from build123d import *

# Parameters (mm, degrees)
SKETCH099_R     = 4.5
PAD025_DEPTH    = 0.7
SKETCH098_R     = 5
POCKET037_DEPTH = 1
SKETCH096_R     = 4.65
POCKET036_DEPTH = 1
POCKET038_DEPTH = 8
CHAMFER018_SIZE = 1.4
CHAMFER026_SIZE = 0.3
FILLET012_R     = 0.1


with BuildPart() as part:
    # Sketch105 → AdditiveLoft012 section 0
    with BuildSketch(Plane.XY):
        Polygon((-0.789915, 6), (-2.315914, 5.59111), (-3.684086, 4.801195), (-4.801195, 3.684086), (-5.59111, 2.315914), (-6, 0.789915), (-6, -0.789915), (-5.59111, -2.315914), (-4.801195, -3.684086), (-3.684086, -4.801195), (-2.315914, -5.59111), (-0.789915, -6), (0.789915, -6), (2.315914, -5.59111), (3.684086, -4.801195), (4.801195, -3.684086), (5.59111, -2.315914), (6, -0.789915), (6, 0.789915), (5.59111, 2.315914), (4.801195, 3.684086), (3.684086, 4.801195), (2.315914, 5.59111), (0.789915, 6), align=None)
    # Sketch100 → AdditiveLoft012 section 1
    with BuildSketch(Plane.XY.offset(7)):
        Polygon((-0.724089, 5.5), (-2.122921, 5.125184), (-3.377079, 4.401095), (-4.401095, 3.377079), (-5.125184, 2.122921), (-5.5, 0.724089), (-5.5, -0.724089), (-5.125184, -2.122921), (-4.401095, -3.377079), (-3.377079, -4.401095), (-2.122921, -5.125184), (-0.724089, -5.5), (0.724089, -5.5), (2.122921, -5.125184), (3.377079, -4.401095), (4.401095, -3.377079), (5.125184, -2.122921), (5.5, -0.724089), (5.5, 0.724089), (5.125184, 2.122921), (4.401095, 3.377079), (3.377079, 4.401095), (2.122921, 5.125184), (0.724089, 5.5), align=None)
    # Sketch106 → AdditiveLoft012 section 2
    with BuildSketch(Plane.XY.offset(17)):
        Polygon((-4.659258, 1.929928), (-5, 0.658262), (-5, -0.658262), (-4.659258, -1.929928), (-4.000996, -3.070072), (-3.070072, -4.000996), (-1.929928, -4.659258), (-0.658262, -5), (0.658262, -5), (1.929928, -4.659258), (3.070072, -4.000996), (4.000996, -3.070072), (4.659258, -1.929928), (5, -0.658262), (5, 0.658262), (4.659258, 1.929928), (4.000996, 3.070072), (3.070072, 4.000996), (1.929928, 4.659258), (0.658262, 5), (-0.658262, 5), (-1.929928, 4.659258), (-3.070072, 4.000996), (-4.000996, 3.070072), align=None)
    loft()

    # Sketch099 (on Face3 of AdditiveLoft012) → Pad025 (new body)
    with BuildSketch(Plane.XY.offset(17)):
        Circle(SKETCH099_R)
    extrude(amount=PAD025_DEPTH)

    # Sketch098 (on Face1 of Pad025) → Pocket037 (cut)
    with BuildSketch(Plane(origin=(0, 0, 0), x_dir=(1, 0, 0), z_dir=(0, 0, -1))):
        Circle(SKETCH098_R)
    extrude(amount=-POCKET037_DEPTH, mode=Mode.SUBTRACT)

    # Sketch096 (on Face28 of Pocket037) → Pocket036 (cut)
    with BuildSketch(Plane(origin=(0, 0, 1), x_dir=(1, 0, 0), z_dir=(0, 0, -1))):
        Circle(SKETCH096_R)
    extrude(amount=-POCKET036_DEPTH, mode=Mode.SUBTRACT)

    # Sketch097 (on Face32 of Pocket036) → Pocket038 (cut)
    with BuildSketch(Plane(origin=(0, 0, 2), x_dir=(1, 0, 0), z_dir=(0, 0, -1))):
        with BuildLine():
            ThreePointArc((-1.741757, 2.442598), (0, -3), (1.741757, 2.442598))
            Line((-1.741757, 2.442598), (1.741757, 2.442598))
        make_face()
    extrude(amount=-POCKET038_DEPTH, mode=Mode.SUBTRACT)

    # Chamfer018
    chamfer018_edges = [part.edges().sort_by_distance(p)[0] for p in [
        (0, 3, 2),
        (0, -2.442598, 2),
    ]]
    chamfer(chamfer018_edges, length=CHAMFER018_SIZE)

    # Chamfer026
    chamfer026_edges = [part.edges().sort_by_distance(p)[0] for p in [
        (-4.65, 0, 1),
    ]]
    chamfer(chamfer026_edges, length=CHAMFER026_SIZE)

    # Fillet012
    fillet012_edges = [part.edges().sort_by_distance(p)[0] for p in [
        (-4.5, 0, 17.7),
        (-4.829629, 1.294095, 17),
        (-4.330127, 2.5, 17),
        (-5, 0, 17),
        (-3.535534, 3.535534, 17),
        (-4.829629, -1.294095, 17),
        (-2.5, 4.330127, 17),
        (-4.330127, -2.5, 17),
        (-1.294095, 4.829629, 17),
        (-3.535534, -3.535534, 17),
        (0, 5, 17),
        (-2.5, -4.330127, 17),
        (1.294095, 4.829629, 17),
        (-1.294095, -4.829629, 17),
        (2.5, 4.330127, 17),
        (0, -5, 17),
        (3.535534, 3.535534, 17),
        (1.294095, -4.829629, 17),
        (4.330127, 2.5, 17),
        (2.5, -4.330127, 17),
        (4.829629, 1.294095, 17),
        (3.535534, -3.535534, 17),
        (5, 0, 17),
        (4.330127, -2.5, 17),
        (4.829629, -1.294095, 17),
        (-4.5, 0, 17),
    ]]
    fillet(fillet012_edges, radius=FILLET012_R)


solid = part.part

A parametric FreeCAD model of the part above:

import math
import FreeCAD as App
import Part
import Sketcher

V = App.Vector
Q = App.Units.Quantity


def edges_at(feature, points):
    """Names of the edges that pass closest to the given points."""
    edges = feature.Shape.Edges
    near = lambda p: min(range(len(edges)), key=lambda i: edges[i].distToShape(Part.Vertex(*p))[0])
    return sorted({f"Edge{near(p) + 1}" for p in points})

doc = App.newDocument("Part")
body = doc.addObject("PartDesign::Body", "Body")

sketch1 = doc.addObject("Sketcher::SketchObject", "Sketch")
body.addObject(sketch1)
sketch1.AttachmentSupport = (doc.XY_Plane, [""])
sketch1.MapMode = "FlatFace"
sketch1.addGeometry([
    Part.LineSegment(V(-0.8, 6, 0), V(-2.3, 5.6, 0)),
    Part.LineSegment(V(-2.3, 5.6, 0), V(-3.7, 4.8, 0)),
    Part.LineSegment(V(-3.7, 4.8, 0), V(-4.8, 3.7, 0)),
    Part.LineSegment(V(-4.8, 3.7, 0), V(-5.6, 2.3, 0)),
    Part.LineSegment(V(-5.6, 2.3, 0), V(-6, 0.8, 0)),
    Part.LineSegment(V(-6, 0.8, 0), V(-6, -0.8, 0)),
    Part.LineSegment(V(-6, -0.8, 0), V(-5.6, -2.3, 0)),
    Part.LineSegment(V(-5.6, -2.3, 0), V(-4.8, -3.7, 0)),
    Part.LineSegment(V(-4.8, -3.7, 0), V(-3.7, -4.8, 0)),
    Part.LineSegment(V(-3.7, -4.8, 0), V(-2.3, -5.6, 0)),
    Part.LineSegment(V(-2.3, -5.6, 0), V(-0.8, -6, 0)),
    Part.LineSegment(V(-0.8, -6, 0), V(0.8, -6, 0)),
    Part.LineSegment(V(0.8, -6, 0), V(2.3, -5.6, 0)),
    Part.LineSegment(V(2.3, -5.6, 0), V(3.7, -4.8, 0)),
    Part.LineSegment(V(3.7, -4.8, 0), V(4.8, -3.7, 0)),
    Part.LineSegment(V(4.8, -3.7, 0), V(5.6, -2.3, 0)),
    Part.LineSegment(V(5.6, -2.3, 0), V(6, -0.8, 0)),
    Part.LineSegment(V(6, -0.8, 0), V(6, 0.8, 0)),
    Part.LineSegment(V(6, 0.8, 0), V(5.6, 2.3, 0)),
    Part.LineSegment(V(5.6, 2.3, 0), V(4.8, 3.7, 0)),
    Part.LineSegment(V(4.8, 3.7, 0), V(3.7, 4.8, 0)),
    Part.LineSegment(V(3.7, 4.8, 0), V(2.3, 5.6, 0)),
    Part.LineSegment(V(2.3, 5.6, 0), V(0.8, 6, 0)),
    Part.LineSegment(V(0.8, 6, 0), V(-0.8, 6, 0)),
], False)
sketch1.addConstraint([
    Sketcher.Constraint("Coincident", 0, 2, 1, 1),
    Sketcher.Constraint("Coincident", 1, 2, 2, 1),
    Sketcher.Constraint("Coincident", 2, 2, 3, 1),
    Sketcher.Constraint("Coincident", 3, 2, 4, 1),
    Sketcher.Constraint("Coincident", 4, 2, 5, 1),
    Sketcher.Constraint("Coincident", 5, 2, 6, 1),
    Sketcher.Constraint("Coincident", 6, 2, 7, 1),
    Sketcher.Constraint("Coincident", 7, 2, 8, 1),
    Sketcher.Constraint("Coincident", 8, 2, 9, 1),
    Sketcher.Constraint("Coincident", 9, 2, 10, 1),
    Sketcher.Constraint("Coincident", 10, 2, 11, 1),
    Sketcher.Constraint("Coincident", 11, 2, 12, 1),
    Sketcher.Constraint("Coincident", 12, 2, 13, 1),
    Sketcher.Constraint("Coincident", 13, 2, 14, 1),
    Sketcher.Constraint("Coincident", 14, 2, 15, 1),
    Sketcher.Constraint("Coincident", 15, 2, 16, 1),
    Sketcher.Constraint("Coincident", 16, 2, 17, 1),
    Sketcher.Constraint("Coincident", 17, 2, 18, 1),
    Sketcher.Constraint("Coincident", 18, 2, 19, 1),
    Sketcher.Constraint("Coincident", 19, 2, 20, 1),
    Sketcher.Constraint("Coincident", 20, 2, 21, 1),
    Sketcher.Constraint("Coincident", 21, 2, 22, 1),
    Sketcher.Constraint("Coincident", 22, 2, 23, 1),
    Sketcher.Constraint("Coincident", 23, 2, 0, 1),
    Sketcher.Constraint("Vertical", 5),
    Sketcher.Constraint("Horizontal", 11),
    Sketcher.Constraint("Vertical", 17),
    Sketcher.Constraint("Horizontal", 23),
    Sketcher.Constraint("Symmetric", 0, 2, 12, 2, -1, 1),
    Sketcher.Constraint("Symmetric", 1, 2, 13, 2, -1, 1),
    Sketcher.Constraint("Symmetric", 2, 2, 14, 2, -1, 1),
    Sketcher.Constraint("Symmetric", 3, 2, 15, 2, -1, 1),
    Sketcher.Constraint("Symmetric", 4, 2, 16, 2, -1, 1),
    Sketcher.Constraint("Symmetric", 6, 2, 18, 2, -1, 1),
    Sketcher.Constraint("Symmetric", 7, 2, 19, 2, -1, 1),
    Sketcher.Constraint("Symmetric", 8, 2, 20, 2, -1, 1),
    Sketcher.Constraint("Symmetric", 9, 2, 21, 2, -1, 1),
    Sketcher.Constraint("Symmetric", 10, 2, 22, 2, -1, 1),
    Sketcher.Constraint("Symmetric", 9, 2, 12, 2, -2),
    Sketcher.Constraint("Symmetric", 8, 2, 13, 2, -2),
    Sketcher.Constraint("Symmetric", 7, 2, 14, 2, -2),
    Sketcher.Constraint("Symmetric", 6, 2, 15, 2, -2),
    Sketcher.Constraint("Perpendicular", 0, 6),
    Sketcher.Constraint("Perpendicular", 1, 7),
    Sketcher.Constraint("Perpendicular", 2, 8),
    Sketcher.Constraint("Perpendicular", 4, 10),
    Sketcher.Constraint("Perpendicular", 6, 12),
    Sketcher.Constraint("Perpendicular", 12, 18),
    Sketcher.Constraint("Horizontal", 5, 2, 16, 2),
    Sketcher.Constraint("Equal", 23, 5),
    Sketcher.Constraint("Equal", 0, 1),
    Sketcher.Constraint("Equal", 1, 2),
    Sketcher.Constraint("Equal", 2, 3),
    Sketcher.Constraint("Equal", 3, 4),
    Sketcher.Constraint("Angle", 0, Q("-165.000007 deg")),
    Sketcher.Constraint("Angle", 1, Q("-149.999983 deg")),
    Sketcher.Constraint("DistanceX", 4, 2, -1, 1, 6.0),
    Sketcher.Constraint("DistanceY", 6, 2, 2, 2, 6.0),
])

sketch2 = doc.addObject("Sketcher::SketchObject", "Sketch001")
body.addObject(sketch2)
sketch2.AttachmentSupport = (doc.XY_Plane, [""])
sketch2.MapMode = "FlatFace"
sketch2.AttachmentOffset = App.Placement(V(0, 0, 7), App.Rotation())
sketch2.addGeometry([
    Part.LineSegment(V(-0.7, 5.5, 0), V(-2.1, 5.1, 0)),
    Part.LineSegment(V(-2.1, 5.1, 0), V(-3.4, 4.4, 0)),
    Part.LineSegment(V(-3.4, 4.4, 0), V(-4.4, 3.4, 0)),
    Part.LineSegment(V(-4.4, 3.4, 0), V(-5.1, 2.1, 0)),
    Part.LineSegment(V(-5.1, 2.1, 0), V(-5.5, 0.7, 0)),
    Part.LineSegment(V(-5.5, 0.7, 0), V(-5.5, -0.7, 0)),
    Part.LineSegment(V(-5.5, -0.7, 0), V(-5.1, -2.1, 0)),
    Part.LineSegment(V(-5.1, -2.1, 0), V(-4.4, -3.4, 0)),
    Part.LineSegment(V(-4.4, -3.4, 0), V(-3.4, -4.4, 0)),
    Part.LineSegment(V(-3.4, -4.4, 0), V(-2.1, -5.1, 0)),
    Part.LineSegment(V(-2.1, -5.1, 0), V(-0.7, -5.5, 0)),
    Part.LineSegment(V(-0.7, -5.5, 0), V(0.7, -5.5, 0)),
    Part.LineSegment(V(0.7, -5.5, 0), V(2.1, -5.1, 0)),
    Part.LineSegment(V(2.1, -5.1, 0), V(3.4, -4.4, 0)),
    Part.LineSegment(V(3.4, -4.4, 0), V(4.4, -3.4, 0)),
    Part.LineSegment(V(4.4, -3.4, 0), V(5.1, -2.1, 0)),
    Part.LineSegment(V(5.1, -2.1, 0), V(5.5, -0.7, 0)),
    Part.LineSegment(V(5.5, -0.7, 0), V(5.5, 0.7, 0)),
    Part.LineSegment(V(5.5, 0.7, 0), V(5.1, 2.1, 0)),
    Part.LineSegment(V(5.1, 2.1, 0), V(4.4, 3.4, 0)),
    Part.LineSegment(V(4.4, 3.4, 0), V(3.4, 4.4, 0)),
    Part.LineSegment(V(3.4, 4.4, 0), V(2.1, 5.1, 0)),
    Part.LineSegment(V(2.1, 5.1, 0), V(0.7, 5.5, 0)),
    Part.LineSegment(V(0.7, 5.5, 0), V(-0.7, 5.5, 0)),
], False)
sketch2.addConstraint([
    Sketcher.Constraint("Coincident", 0, 2, 1, 1),
    Sketcher.Constraint("Coincident", 1, 2, 2, 1),
    Sketcher.Constraint("Coincident", 2, 2, 3, 1),
    Sketcher.Constraint("Coincident", 3, 2, 4, 1),
    Sketcher.Constraint("Coincident", 4, 2, 5, 1),
    Sketcher.Constraint("Coincident", 5, 2, 6, 1),
    Sketcher.Constraint("Coincident", 6, 2, 7, 1),
    Sketcher.Constraint("Coincident", 7, 2, 8, 1),
    Sketcher.Constraint("Coincident", 8, 2, 9, 1),
    Sketcher.Constraint("Coincident", 9, 2, 10, 1),
    Sketcher.Constraint("Coincident", 10, 2, 11, 1),
    Sketcher.Constraint("Coincident", 11, 2, 12, 1),
    Sketcher.Constraint("Coincident", 12, 2, 13, 1),
    Sketcher.Constraint("Coincident", 13, 2, 14, 1),
    Sketcher.Constraint("Coincident", 14, 2, 15, 1),
    Sketcher.Constraint("Coincident", 15, 2, 16, 1),
    Sketcher.Constraint("Coincident", 16, 2, 17, 1),
    Sketcher.Constraint("Coincident", 17, 2, 18, 1),
    Sketcher.Constraint("Coincident", 18, 2, 19, 1),
    Sketcher.Constraint("Coincident", 19, 2, 20, 1),
    Sketcher.Constraint("Coincident", 20, 2, 21, 1),
    Sketcher.Constraint("Coincident", 21, 2, 22, 1),
    Sketcher.Constraint("Coincident", 22, 2, 23, 1),
    Sketcher.Constraint("Coincident", 23, 2, 0, 1),
    Sketcher.Constraint("Vertical", 5),
    Sketcher.Constraint("Horizontal", 11),
    Sketcher.Constraint("Vertical", 17),
    Sketcher.Constraint("Horizontal", 23),
    Sketcher.Constraint("Symmetric", 0, 2, 12, 2, -1, 1),
    Sketcher.Constraint("Symmetric", 1, 2, 13, 2, -1, 1),
    Sketcher.Constraint("Symmetric", 2, 2, 14, 2, -1, 1),
    Sketcher.Constraint("Symmetric", 3, 2, 15, 2, -1, 1),
    Sketcher.Constraint("Symmetric", 4, 2, 16, 2, -1, 1),
    Sketcher.Constraint("Symmetric", 6, 2, 18, 2, -1, 1),
    Sketcher.Constraint("Symmetric", 7, 2, 19, 2, -1, 1),
    Sketcher.Constraint("Symmetric", 8, 2, 20, 2, -1, 1),
    Sketcher.Constraint("Symmetric", 9, 2, 21, 2, -1, 1),
    Sketcher.Constraint("Symmetric", 10, 2, 22, 2, -1, 1),
    Sketcher.Constraint("Symmetric", 9, 2, 12, 2, -2),
    Sketcher.Constraint("Symmetric", 8, 2, 13, 2, -2),
    Sketcher.Constraint("Symmetric", 7, 2, 14, 2, -2),
    Sketcher.Constraint("Symmetric", 6, 2, 15, 2, -2),
    Sketcher.Constraint("Perpendicular", 0, 6),
    Sketcher.Constraint("Perpendicular", 1, 7),
    Sketcher.Constraint("Perpendicular", 2, 8),
    Sketcher.Constraint("Perpendicular", 4, 10),
    Sketcher.Constraint("Perpendicular", 6, 12),
    Sketcher.Constraint("Perpendicular", 12, 18),
    Sketcher.Constraint("Horizontal", 5, 2, 16, 2),
    Sketcher.Constraint("Equal", 23, 5),
    Sketcher.Constraint("Equal", 0, 1),
    Sketcher.Constraint("Equal", 1, 2),
    Sketcher.Constraint("Equal", 2, 3),
    Sketcher.Constraint("Equal", 3, 4),
    Sketcher.Constraint("Angle", 0, Q("-164.999996 deg")),
    Sketcher.Constraint("Angle", 1, Q("-149.999981 deg")),
    Sketcher.Constraint("DistanceX", 4, 2, -1, 1, 5.5),
    Sketcher.Constraint("DistanceY", 6, 2, 2, 2, 5.5),
])

sketch3 = doc.addObject("Sketcher::SketchObject", "Sketch002")
body.addObject(sketch3)
sketch3.AttachmentSupport = (doc.XY_Plane, [""])
sketch3.MapMode = "FlatFace"
sketch3.AttachmentOffset = App.Placement(V(0, 0, 17), App.Rotation())
sketch3.addGeometry([
    Part.LineSegment(V(-4.7, 1.9, 0), V(-5, 0.7, 0)),
    Part.LineSegment(V(-5, 0.7, 0), V(-5, -0.7, 0)),
    Part.LineSegment(V(-5, -0.7, 0), V(-4.7, -1.9, 0)),
    Part.LineSegment(V(-4.7, -1.9, 0), V(-4, -3.1, 0)),
    Part.LineSegment(V(-4, -3.1, 0), V(-3.1, -4, 0)),
    Part.LineSegment(V(-3.1, -4, 0), V(-1.9, -4.7, 0)),
    Part.LineSegment(V(-1.9, -4.7, 0), V(-0.7, -5, 0)),
    Part.LineSegment(V(-0.7, -5, 0), V(0.7, -5, 0)),
    Part.LineSegment(V(0.7, -5, 0), V(1.9, -4.7, 0)),
    Part.LineSegment(V(1.9, -4.7, 0), V(3.1, -4, 0)),
    Part.LineSegment(V(3.1, -4, 0), V(4, -3.1, 0)),
    Part.LineSegment(V(4, -3.1, 0), V(4.7, -1.9, 0)),
    Part.LineSegment(V(4.7, -1.9, 0), V(5, -0.7, 0)),
    Part.LineSegment(V(5, -0.7, 0), V(5, 0.7, 0)),
    Part.LineSegment(V(5, 0.7, 0), V(4.7, 1.9, 0)),
    Part.LineSegment(V(4.7, 1.9, 0), V(4, 3.1, 0)),
    Part.LineSegment(V(4, 3.1, 0), V(3.1, 4, 0)),
    Part.LineSegment(V(3.1, 4, 0), V(1.9, 4.7, 0)),
    Part.LineSegment(V(1.9, 4.7, 0), V(0.7, 5, 0)),
    Part.LineSegment(V(0.7, 5, 0), V(-0.7, 5, 0)),
    Part.LineSegment(V(-0.7, 5, 0), V(-1.9, 4.7, 0)),
    Part.LineSegment(V(-1.9, 4.7, 0), V(-3.1, 4, 0)),
    Part.LineSegment(V(-3.1, 4, 0), V(-4, 3.1, 0)),
    Part.LineSegment(V(-4, 3.1, 0), V(-4.7, 1.9, 0)),
], False)
sketch3.addConstraint([
    Sketcher.Constraint("Coincident", 0, 2, 1, 1),
    Sketcher.Constraint("Coincident", 1, 2, 2, 1),
    Sketcher.Constraint("Coincident", 2, 2, 3, 1),
    Sketcher.Constraint("Coincident", 3, 2, 4, 1),
    Sketcher.Constraint("Coincident", 4, 2, 5, 1),
    Sketcher.Constraint("Coincident", 5, 2, 6, 1),
    Sketcher.Constraint("Coincident", 6, 2, 7, 1),
    Sketcher.Constraint("Coincident", 7, 2, 8, 1),
    Sketcher.Constraint("Coincident", 8, 2, 9, 1),
    Sketcher.Constraint("Coincident", 9, 2, 10, 1),
    Sketcher.Constraint("Coincident", 10, 2, 11, 1),
    Sketcher.Constraint("Coincident", 11, 2, 12, 1),
    Sketcher.Constraint("Coincident", 12, 2, 13, 1),
    Sketcher.Constraint("Coincident", 13, 2, 14, 1),
    Sketcher.Constraint("Coincident", 14, 2, 15, 1),
    Sketcher.Constraint("Coincident", 15, 2, 16, 1),
    Sketcher.Constraint("Coincident", 16, 2, 17, 1),
    Sketcher.Constraint("Coincident", 17, 2, 18, 1),
    Sketcher.Constraint("Coincident", 18, 2, 19, 1),
    Sketcher.Constraint("Coincident", 19, 2, 20, 1),
    Sketcher.Constraint("Coincident", 20, 2, 21, 1),
    Sketcher.Constraint("Coincident", 21, 2, 22, 1),
    Sketcher.Constraint("Coincident", 22, 2, 23, 1),
    Sketcher.Constraint("Coincident", 23, 2, 0, 1),
    Sketcher.Constraint("Vertical", 1),
    Sketcher.Constraint("Horizontal", 7),
    Sketcher.Constraint("Vertical", 13),
    Sketcher.Constraint("Horizontal", 19),
    Sketcher.Constraint("Symmetric", 0, 2, 12, 2, -1, 1),
    Sketcher.Constraint("Symmetric", 2, 2, 14, 2, -1, 1),
    Sketcher.Constraint("Symmetric", 3, 2, 15, 2, -1, 1),
    Sketcher.Constraint("Symmetric", 4, 2, 16, 2, -1, 1),
    Sketcher.Constraint("Symmetric", 5, 2, 17, 2, -1, 1),
    Sketcher.Constraint("Symmetric", 6, 2, 18, 2, -1, 1),
    Sketcher.Constraint("Symmetric", 8, 2, 20, 2, -1, 1),
    Sketcher.Constraint("Symmetric", 9, 2, 21, 2, -1, 1),
    Sketcher.Constraint("Symmetric", 10, 2, 22, 2, -1, 1),
    Sketcher.Constraint("Symmetric", 11, 2, 23, 2, -1, 1),
    Sketcher.Constraint("Symmetric", 5, 2, 8, 2, -2),
    Sketcher.Constraint("Symmetric", 4, 2, 9, 2, -2),
    Sketcher.Constraint("Symmetric", 3, 2, 10, 2, -2),
    Sketcher.Constraint("Symmetric", 2, 2, 11, 2, -2),
    Sketcher.Constraint("Perpendicular", 0, 6),
    Sketcher.Constraint("Perpendicular", 2, 8),
    Sketcher.Constraint("Perpendicular", 3, 9),
    Sketcher.Constraint("Perpendicular", 4, 10),
    Sketcher.Constraint("Perpendicular", 8, 14),
    Sketcher.Constraint("Perpendicular", 14, 20),
    Sketcher.Constraint("Horizontal", 1, 2, 12, 2),
    Sketcher.Constraint("Equal", 19, 1),
    Sketcher.Constraint("Equal", 2, 3),
    Sketcher.Constraint("Equal", 3, 4),
    Sketcher.Constraint("Equal", 4, 5),
    Sketcher.Constraint("Equal", 5, 6),
    Sketcher.Constraint("Angle", 0, Q("-105.000005 deg")),
    Sketcher.Constraint("Angle", 3, Q("-60.000017 deg")),
    Sketcher.Constraint("DistanceX", 0, 2, -1, 1, 5.0),
    Sketcher.Constraint("DistanceX", 4, 2, 8, 2, 5.0),
])

additiveloft = doc.addObject("PartDesign::AdditiveLoft", "AdditiveLoft")
body.addObject(additiveloft)
additiveloft.Profile = sketch1
additiveloft.Sections = [sketch2, sketch3]

sketch4 = doc.addObject("Sketcher::SketchObject", "Sketch003")
body.addObject(sketch4)
sketch4.AttachmentSupport = (doc.XY_Plane, [""])
sketch4.MapMode = "FlatFace"
sketch4.AttachmentOffset = App.Placement(V(0, 0, 17), App.Rotation())
sketch4.addGeometry(Part.Circle(V(0, 0, 0), V(0, 0, 1), 4.5), False)
sketch4.addConstraint([
    Sketcher.Constraint("Coincident", 0, 3, -1, 1),
    Sketcher.Constraint("Diameter", 0, 9.0),
])
pad1 = doc.addObject("PartDesign::Pad", "Pad")
body.addObject(pad1)
pad1.Profile = sketch4
pad1.Length = 0.7

sketch5 = doc.addObject("Sketcher::SketchObject", "Sketch004")
body.addObject(sketch5)
sketch5.AttachmentSupport = (doc.XY_Plane, [""])
sketch5.MapMode = "FlatFace"
sketch5.addGeometry(Part.Circle(V(0, 0, 0), V(0, 0, 1), 5), False)
sketch5.addConstraint([
    Sketcher.Constraint("Coincident", 0, 3, -1, 1),
    Sketcher.Constraint("Diameter", 0, 10.0),
])
pocket1 = doc.addObject("PartDesign::Pocket", "Pocket")
body.addObject(pocket1)
pocket1.Profile = sketch5
pocket1.Length = 1
pocket1.Reversed = True

sketch6 = doc.addObject("Sketcher::SketchObject", "Sketch005")
body.addObject(sketch6)
sketch6.AttachmentSupport = (doc.XY_Plane, [""])
sketch6.MapMode = "FlatFace"
sketch6.AttachmentOffset = App.Placement(V(0, 0, 1), App.Rotation())
sketch6.addGeometry(Part.Circle(V(0, 0, 0), V(0, 0, 1), 4.7), False)
sketch6.addConstraint([
    Sketcher.Constraint("Coincident", 0, 3, -1, 1),
    Sketcher.Constraint("Diameter", 0, 9.3),
])
pocket2 = doc.addObject("PartDesign::Pocket", "Pocket001")
body.addObject(pocket2)
pocket2.Profile = sketch6
pocket2.Length = 1
pocket2.Reversed = True

sketch7 = doc.addObject("Sketcher::SketchObject", "Sketch006")
body.addObject(sketch7)
sketch7.AttachmentSupport = (doc.XY_Plane, [""])
sketch7.MapMode = "FlatFace"
sketch7.AttachmentOffset = App.Placement(V(0, 0, 2), App.Rotation())
sketch7.addGeometry([
    Part.ArcOfCircle(Part.Circle(V(0, 0, 0), V(0, 0, 1), 3), math.radians(-55), math.radians(235)),
    Part.LineSegment(V(1.7, -2.4, 0), V(-1.7, -2.4, 0)),
], False)
sketch7.addConstraint([
    Sketcher.Constraint("Coincident", 0, 1, 1, 1),
    Sketcher.Constraint("Coincident", 1, 2, 0, 2),
    Sketcher.Constraint("Horizontal", 1),
    Sketcher.Constraint("Coincident", 0, 3, -1, 1),
    Sketcher.Constraint("Radius", 0, 3.0),
    Sketcher.Constraint("DistanceY", 0, 1, -1, 1, 2.442598),
])
pocket3 = doc.addObject("PartDesign::Pocket", "Pocket002")
body.addObject(pocket3)
pocket3.Profile = sketch7
pocket3.Length = 8
pocket3.Reversed = True
doc.recompute()

chamfer = doc.addObject("PartDesign::Chamfer", "Chamfer")
body.addObject(chamfer)
chamfer.Base = (pocket3, edges_at(pocket3, [(0, 3, 2), (0, -2.443, 2)]))
chamfer.Size = 1.4
doc.recompute()

chamfer2 = doc.addObject("PartDesign::Chamfer", "Chamfer001")
body.addObject(chamfer2)
chamfer2.Base = (chamfer, edges_at(chamfer, [(-4.65, 0, 1)]))
chamfer2.Size = 0.3
doc.recompute()

fillet = doc.addObject("PartDesign::Fillet", "Fillet")
body.addObject(fillet)
fillet.Base = (chamfer2, edges_at(chamfer2, [
    (-4.5, 0, 17.7),
    (-4.83, 1.294, 17),
    (-4.33, 2.5, 17),
    (-5, 0, 17),
    (-3.536, 3.536, 17),
    (-4.83, -1.294, 17),
    (-2.5, 4.33, 17),
    (-4.33, -2.5, 17),
    (-1.294, 4.83, 17),
    (-3.536, -3.536, 17),
    (0, 5, 17),
    (-2.5, -4.33, 17),
    (1.294, 4.83, 17),
    (-1.294, -4.83, 17),
    (2.5, 4.33, 17),
    (0, -5, 17),
    (3.536, 3.536, 17),
    (1.294, -4.83, 17),
    (4.33, 2.5, 17),
    (2.5, -4.33, 17),
    (4.83, 1.294, 17),
    (3.536, -3.536, 17),
    (5, 0, 17),
    (4.33, -2.5, 17),
    (4.83, -1.294, 17),
    (-4.5, 0, 17),
]))
fillet.Radius = 0.1

doc.recompute()
